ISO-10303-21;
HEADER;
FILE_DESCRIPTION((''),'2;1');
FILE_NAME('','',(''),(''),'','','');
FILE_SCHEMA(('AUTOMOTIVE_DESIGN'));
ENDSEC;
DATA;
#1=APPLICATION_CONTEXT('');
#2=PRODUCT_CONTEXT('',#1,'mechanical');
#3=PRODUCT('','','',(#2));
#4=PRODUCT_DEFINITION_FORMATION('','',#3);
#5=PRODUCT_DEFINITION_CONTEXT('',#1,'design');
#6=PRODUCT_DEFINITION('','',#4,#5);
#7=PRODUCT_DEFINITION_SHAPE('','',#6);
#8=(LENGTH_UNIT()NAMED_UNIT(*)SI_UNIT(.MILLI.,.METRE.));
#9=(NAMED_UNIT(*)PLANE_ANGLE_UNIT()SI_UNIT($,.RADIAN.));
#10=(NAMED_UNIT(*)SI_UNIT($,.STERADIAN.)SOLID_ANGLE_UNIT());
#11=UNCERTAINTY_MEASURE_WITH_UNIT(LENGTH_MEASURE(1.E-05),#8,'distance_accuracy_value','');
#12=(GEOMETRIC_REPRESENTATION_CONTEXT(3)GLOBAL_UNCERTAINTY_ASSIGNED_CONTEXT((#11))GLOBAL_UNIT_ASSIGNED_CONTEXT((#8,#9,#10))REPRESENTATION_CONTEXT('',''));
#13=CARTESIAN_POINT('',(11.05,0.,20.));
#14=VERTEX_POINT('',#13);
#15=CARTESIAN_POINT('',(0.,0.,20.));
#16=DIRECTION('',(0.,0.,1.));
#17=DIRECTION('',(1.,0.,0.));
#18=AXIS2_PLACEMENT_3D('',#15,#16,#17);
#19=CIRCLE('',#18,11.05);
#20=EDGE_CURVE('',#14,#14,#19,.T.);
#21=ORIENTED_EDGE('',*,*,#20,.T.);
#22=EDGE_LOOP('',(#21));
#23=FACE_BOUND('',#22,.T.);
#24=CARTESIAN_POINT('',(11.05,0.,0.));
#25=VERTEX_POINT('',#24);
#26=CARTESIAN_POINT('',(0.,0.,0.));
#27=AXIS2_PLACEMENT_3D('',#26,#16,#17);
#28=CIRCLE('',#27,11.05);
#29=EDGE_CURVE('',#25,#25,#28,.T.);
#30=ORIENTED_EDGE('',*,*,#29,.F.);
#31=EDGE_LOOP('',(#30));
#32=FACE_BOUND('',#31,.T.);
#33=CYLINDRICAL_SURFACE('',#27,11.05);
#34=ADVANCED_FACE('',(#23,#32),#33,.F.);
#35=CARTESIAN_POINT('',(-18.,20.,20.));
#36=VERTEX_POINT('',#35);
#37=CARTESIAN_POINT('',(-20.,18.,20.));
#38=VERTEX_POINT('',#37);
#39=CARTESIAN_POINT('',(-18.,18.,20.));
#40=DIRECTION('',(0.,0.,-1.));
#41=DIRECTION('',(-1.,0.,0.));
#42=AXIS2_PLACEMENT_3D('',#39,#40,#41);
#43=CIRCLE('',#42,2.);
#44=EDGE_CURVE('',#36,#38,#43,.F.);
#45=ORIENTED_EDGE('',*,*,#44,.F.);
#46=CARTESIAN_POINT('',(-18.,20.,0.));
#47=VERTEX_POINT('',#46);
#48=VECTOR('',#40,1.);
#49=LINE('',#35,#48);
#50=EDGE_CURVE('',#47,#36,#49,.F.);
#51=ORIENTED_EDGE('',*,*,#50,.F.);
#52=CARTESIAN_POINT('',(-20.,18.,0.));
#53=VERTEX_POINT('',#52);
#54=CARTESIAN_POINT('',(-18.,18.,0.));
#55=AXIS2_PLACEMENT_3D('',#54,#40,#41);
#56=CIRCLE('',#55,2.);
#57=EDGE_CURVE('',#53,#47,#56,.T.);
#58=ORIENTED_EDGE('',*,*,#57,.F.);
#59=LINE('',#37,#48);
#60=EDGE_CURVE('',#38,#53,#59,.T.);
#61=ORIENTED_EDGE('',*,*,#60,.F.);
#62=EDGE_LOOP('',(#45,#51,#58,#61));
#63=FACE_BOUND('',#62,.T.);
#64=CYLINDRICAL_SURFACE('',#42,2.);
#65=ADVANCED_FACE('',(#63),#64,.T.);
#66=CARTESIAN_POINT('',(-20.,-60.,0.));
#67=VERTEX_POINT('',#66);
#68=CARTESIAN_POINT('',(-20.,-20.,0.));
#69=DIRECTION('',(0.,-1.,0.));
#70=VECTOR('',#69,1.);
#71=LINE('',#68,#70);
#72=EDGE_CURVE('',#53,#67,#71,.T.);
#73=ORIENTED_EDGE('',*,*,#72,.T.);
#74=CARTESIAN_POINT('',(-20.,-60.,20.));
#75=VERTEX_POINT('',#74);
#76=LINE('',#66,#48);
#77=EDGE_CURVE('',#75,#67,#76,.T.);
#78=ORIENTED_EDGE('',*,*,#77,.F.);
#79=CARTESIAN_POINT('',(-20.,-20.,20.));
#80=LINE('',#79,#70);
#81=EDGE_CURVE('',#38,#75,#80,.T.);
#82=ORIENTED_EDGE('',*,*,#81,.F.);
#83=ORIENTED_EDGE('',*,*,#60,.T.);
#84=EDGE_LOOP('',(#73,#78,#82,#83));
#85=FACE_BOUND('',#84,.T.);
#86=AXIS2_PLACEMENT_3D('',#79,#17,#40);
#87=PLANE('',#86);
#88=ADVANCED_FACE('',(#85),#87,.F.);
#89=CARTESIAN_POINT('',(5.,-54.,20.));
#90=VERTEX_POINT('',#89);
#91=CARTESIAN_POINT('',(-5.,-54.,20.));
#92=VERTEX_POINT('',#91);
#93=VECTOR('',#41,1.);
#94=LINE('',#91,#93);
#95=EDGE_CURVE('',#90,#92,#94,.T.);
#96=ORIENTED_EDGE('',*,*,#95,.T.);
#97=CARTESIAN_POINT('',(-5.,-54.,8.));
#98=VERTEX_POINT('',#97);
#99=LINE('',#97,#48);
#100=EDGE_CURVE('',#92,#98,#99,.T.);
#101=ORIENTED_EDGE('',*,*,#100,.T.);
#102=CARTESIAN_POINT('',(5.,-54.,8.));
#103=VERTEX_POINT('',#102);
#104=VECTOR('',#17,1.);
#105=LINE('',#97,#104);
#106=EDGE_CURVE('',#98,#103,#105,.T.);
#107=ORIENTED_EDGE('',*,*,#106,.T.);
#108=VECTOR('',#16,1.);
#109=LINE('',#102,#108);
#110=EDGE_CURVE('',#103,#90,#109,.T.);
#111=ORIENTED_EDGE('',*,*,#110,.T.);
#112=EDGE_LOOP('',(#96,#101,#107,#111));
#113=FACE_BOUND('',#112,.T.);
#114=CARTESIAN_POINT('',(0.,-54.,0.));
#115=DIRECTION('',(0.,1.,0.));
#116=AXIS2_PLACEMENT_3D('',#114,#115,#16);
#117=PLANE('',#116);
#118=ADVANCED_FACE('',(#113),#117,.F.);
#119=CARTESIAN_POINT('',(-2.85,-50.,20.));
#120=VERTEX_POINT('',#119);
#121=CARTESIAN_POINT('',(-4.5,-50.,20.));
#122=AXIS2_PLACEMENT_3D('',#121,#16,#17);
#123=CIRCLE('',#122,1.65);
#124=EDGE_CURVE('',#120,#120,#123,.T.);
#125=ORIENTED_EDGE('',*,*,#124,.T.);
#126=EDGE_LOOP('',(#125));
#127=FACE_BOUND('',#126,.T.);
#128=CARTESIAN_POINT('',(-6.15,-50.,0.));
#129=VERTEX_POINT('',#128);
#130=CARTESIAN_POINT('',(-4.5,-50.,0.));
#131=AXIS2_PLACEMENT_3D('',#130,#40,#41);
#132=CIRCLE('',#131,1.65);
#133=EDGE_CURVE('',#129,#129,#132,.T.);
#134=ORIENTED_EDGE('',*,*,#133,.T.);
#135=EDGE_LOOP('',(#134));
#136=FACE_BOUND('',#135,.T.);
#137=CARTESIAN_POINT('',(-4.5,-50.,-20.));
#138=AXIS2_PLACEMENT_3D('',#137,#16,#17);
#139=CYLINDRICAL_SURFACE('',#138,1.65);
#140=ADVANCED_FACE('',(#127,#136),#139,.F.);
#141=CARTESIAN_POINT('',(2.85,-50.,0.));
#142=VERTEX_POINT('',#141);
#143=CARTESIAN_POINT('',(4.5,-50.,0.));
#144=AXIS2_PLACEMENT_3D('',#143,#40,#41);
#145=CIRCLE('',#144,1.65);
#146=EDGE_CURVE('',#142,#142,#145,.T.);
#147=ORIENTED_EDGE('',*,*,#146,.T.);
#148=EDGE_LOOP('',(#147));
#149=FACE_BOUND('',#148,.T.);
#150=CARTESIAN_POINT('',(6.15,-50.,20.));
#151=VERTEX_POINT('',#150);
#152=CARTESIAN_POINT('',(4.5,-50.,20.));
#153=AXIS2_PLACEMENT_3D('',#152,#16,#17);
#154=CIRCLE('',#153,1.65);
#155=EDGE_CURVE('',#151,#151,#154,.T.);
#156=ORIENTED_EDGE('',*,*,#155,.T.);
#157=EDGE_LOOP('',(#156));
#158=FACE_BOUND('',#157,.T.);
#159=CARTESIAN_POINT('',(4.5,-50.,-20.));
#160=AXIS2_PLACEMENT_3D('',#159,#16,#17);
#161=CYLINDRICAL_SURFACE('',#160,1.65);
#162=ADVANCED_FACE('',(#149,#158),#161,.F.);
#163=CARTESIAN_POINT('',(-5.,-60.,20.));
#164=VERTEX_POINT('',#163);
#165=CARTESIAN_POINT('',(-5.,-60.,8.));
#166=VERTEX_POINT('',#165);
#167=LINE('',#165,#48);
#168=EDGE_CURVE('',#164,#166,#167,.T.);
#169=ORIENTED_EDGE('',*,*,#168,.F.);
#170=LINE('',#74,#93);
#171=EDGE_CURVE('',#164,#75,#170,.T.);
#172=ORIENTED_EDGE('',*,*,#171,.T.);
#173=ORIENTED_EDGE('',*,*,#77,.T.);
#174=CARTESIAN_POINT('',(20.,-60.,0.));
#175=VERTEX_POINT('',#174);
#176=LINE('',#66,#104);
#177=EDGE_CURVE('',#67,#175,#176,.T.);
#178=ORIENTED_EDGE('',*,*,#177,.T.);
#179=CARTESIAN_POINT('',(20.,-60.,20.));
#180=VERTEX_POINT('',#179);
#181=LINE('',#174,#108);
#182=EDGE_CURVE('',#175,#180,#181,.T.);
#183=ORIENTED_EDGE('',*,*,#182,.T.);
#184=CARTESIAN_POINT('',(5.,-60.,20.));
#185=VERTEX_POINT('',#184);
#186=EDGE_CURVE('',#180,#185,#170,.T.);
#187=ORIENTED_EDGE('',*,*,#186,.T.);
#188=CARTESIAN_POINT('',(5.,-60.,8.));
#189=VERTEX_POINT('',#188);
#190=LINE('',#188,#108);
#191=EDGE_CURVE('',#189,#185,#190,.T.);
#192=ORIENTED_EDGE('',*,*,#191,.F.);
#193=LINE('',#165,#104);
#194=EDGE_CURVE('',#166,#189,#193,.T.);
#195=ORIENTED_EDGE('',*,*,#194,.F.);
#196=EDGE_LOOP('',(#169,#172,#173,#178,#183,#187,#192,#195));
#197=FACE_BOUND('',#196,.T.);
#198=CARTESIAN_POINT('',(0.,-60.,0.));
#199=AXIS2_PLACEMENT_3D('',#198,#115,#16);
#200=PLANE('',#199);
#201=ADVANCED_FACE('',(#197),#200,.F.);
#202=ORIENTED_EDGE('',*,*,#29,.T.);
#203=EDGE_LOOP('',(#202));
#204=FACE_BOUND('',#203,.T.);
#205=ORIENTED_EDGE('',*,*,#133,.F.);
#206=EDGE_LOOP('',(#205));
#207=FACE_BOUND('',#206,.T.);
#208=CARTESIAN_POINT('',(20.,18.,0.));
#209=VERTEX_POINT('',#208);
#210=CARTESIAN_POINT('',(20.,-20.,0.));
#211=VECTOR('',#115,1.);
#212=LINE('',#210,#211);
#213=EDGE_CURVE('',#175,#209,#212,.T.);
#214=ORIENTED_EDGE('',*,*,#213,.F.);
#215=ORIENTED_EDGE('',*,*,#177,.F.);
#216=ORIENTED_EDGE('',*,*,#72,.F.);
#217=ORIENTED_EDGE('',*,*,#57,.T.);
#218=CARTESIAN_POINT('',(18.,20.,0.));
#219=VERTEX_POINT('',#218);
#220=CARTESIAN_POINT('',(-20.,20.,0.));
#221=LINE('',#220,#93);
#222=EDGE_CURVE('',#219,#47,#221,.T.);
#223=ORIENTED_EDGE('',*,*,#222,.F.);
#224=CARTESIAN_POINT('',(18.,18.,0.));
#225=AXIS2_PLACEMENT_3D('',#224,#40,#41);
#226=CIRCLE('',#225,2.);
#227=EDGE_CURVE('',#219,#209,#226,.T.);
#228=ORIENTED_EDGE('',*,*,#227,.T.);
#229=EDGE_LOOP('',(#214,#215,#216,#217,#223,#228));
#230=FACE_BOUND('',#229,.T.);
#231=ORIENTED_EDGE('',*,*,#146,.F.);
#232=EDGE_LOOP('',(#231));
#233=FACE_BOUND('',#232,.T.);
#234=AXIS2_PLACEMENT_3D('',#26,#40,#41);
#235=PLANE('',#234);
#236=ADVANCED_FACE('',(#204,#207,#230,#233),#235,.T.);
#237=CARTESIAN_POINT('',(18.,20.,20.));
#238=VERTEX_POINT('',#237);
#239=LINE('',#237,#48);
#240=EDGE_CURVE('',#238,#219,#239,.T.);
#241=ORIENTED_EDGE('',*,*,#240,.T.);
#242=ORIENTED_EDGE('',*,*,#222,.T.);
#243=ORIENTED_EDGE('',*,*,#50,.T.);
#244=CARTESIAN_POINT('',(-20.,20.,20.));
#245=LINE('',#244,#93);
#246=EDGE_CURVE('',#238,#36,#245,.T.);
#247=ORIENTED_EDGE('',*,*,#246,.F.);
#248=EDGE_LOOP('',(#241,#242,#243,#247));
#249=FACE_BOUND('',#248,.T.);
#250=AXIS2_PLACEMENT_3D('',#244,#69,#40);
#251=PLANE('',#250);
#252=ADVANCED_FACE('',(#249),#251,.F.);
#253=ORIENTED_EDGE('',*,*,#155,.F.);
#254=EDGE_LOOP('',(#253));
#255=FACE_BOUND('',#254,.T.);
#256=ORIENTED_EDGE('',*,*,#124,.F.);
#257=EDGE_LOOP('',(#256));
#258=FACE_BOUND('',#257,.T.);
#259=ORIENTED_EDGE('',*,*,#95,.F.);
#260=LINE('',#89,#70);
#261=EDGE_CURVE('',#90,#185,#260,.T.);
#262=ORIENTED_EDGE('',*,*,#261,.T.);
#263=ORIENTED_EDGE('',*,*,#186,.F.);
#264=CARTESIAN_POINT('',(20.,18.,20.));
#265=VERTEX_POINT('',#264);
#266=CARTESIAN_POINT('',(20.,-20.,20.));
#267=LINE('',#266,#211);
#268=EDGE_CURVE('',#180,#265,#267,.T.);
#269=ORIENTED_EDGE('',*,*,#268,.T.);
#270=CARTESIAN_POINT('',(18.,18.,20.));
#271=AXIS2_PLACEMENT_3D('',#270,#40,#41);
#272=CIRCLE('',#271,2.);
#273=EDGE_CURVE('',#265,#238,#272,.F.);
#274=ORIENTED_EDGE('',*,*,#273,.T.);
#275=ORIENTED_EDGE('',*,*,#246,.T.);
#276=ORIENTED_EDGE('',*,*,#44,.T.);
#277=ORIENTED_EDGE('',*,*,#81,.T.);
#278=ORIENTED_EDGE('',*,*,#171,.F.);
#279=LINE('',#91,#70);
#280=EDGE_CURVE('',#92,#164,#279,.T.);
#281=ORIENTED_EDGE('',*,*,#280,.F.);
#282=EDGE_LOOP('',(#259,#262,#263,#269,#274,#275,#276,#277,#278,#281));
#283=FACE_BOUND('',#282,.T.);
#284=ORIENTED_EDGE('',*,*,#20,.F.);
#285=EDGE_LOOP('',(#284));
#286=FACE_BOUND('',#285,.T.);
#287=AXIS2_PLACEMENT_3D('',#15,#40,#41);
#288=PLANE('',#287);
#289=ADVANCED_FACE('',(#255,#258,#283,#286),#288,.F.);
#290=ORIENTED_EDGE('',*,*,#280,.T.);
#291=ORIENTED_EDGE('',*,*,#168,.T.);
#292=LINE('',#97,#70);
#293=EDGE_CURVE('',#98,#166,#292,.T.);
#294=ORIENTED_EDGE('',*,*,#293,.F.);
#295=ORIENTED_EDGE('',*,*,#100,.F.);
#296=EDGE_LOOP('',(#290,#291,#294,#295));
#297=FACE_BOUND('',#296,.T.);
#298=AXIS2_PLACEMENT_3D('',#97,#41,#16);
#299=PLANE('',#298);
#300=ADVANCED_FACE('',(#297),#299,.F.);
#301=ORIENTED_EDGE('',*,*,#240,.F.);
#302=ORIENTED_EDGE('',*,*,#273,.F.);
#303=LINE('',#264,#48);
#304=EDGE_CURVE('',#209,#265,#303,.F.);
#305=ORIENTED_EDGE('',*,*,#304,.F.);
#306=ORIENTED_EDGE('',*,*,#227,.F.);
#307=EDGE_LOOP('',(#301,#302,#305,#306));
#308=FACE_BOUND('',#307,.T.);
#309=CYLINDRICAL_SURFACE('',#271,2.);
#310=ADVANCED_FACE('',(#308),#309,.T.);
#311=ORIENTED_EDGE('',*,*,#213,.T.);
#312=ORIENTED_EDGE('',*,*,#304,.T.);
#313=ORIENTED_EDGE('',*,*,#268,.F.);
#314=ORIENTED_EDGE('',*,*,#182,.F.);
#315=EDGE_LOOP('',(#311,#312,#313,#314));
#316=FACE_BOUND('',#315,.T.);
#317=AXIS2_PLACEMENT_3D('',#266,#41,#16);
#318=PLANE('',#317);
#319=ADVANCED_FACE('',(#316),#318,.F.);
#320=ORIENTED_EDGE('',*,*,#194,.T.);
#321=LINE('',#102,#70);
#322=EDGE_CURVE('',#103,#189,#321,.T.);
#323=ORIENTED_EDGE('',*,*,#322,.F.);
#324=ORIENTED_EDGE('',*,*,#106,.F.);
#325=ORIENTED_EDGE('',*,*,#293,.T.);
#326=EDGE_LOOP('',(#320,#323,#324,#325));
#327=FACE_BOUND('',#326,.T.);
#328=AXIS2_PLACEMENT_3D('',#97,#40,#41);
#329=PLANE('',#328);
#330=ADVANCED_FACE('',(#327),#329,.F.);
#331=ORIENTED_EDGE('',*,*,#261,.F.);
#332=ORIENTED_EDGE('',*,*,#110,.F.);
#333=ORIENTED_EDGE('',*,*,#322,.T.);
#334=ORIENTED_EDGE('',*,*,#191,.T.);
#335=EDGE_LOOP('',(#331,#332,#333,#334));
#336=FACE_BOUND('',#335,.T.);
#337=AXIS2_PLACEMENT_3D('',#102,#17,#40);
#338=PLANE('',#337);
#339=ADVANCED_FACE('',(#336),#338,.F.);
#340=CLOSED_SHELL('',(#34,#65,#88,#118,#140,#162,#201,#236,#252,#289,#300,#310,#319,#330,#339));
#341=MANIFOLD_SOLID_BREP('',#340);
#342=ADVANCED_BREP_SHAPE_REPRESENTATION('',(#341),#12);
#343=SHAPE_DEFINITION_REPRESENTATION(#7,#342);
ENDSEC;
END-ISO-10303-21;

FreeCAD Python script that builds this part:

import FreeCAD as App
import Part
import Sketcher
Q = App.Units.Quantity


def edges_at(feature, points):
    """Names of the edges that pass closest to the given points."""
    edges = feature.Shape.Edges
    near = lambda p: min(range(len(edges)), key=lambda i: edges[i].distToShape(Part.Vertex(*p))[0])
    return sorted({f"Edge{near(p) + 1}" for p in points})


def add_polygon(sketch, points):
    """Adds a closed chain of lines whose ends are joined by coincident constraints."""
    first, n = sketch.GeometryCount, len(points)
    for a, b in zip(points, points[1:] + points[:1]):
        sketch.addGeometry(Part.LineSegment(App.Vector(*a, 0), App.Vector(*b, 0)), False)
    for i in range(n):
        sketch.addConstraint(Sketcher.Constraint("Coincident", first + i, 2, first + (i + 1) % n, 1))

doc = App.newDocument("Part")
body = doc.addObject("PartDesign::Body", "Body")

sketch1 = body.newObject("Sketcher::SketchObject", "Sketch")
sketch1.AttachmentSupport = (doc.getObject("XY_Plane"), [""])
sketch1.MapMode = "FlatFace"
add_polygon(sketch1, [(-20, 20), (-20, -20), (20, -20), (20, 20)])
sketch1.addConstraint([
    Sketcher.Constraint("Vertical", 0),
    Sketcher.Constraint("Horizontal", 1),
    Sketcher.Constraint("Vertical", 2),
    Sketcher.Constraint("Horizontal", 3),
    Sketcher.Constraint("Symmetric", 0, 2, 2, 2, -1, 1),
    Sketcher.Constraint("Equal", 3, 0),
    Sketcher.Constraint("DistanceX", 1, 1, 1, 2, Q("40 mm")),
])
pad1 = body.newObject("PartDesign::Pad", "Pad")
pad1.Profile = sketch1
pad1.Length = 20

sketch2 = body.newObject("Sketcher::SketchObject", "Sketch001")
sketch2.AttachmentSupport = (doc.getObject("XY_Plane"), [""])
sketch2.MapMode = "FlatFace"
sketch2.AttachmentOffset = App.Placement(App.Vector(0, 0, 20), App.Rotation())
sketch2.addGeometry(Part.Circle(App.Vector(0, 0, 0), App.Vector(0, 0, 1), 11.05), False)
sketch2.addConstraint([
    Sketcher.Constraint("Coincident", 0, 3, -1, 1),
    Sketcher.Constraint("Diameter", 0, Q("22.1 mm")),
])
pocket1 = body.newObject("PartDesign::Pocket", "Pocket")
pocket1.Profile = sketch2
pocket1.Length = 20

sketch3 = body.newObject("Sketcher::SketchObject", "Sketch002")
sketch3.AttachmentSupport = (doc.getObject("XZ_Plane"), [""])
sketch3.MapMode = "FlatFace"
sketch3.AttachmentOffset = App.Placement(App.Vector(0, 0, 20), App.Rotation())
add_polygon(sketch3, [(-20, 20), (-20, 0), (20, 0), (20, 20)])
sketch3.addConstraint([
    Sketcher.Constraint("Vertical", 0),
    Sketcher.Constraint("Horizontal", 1),
    Sketcher.Constraint("Vertical", 2),
    Sketcher.Constraint("Horizontal", 3),
    Sketcher.Constraint("Symmetric", 0, 2, 1, 2, -1, 1),
    Sketcher.Constraint("DistanceX", 1, 1, 1, 2, Q("40 mm")),
    Sketcher.Constraint("DistanceY", 0, 2, 0, 1, Q("20 mm")),
])
pad2 = body.newObject("PartDesign::Pad", "Pad001")
pad2.Profile = sketch3
pad2.Length = 40

sketch4 = body.newObject("Sketcher::SketchObject", "Sketch003")
sketch4.AttachmentSupport = (doc.getObject("XY_Plane"), [""])
sketch4.MapMode = "FlatFace"
sketch4.AttachmentOffset = App.Placement(App.Vector(0, 0, 20), App.Rotation())
sketch4.addGeometry([
    Part.Circle(App.Vector(4.5, -50, 0), App.Vector(0, 0, 1), 1.65),
    Part.Circle(App.Vector(-4.5, -50, 0), App.Vector(0, 0, 1), 1.65),
], False)
sketch4.addConstraint([
    Sketcher.Constraint("Equal", 0, 1),
    Sketcher.Constraint("Symmetric", 0, 3, 1, 3, -2),
    Sketcher.Constraint("Diameter", 0, Q("3.3 mm")),
    Sketcher.Constraint("DistanceY", 0, 3, -1, 1, Q("50 mm")),
    Sketcher.Constraint("DistanceX", 1, 3, 0, 3, Q("9 mm")),
])
pocket2 = body.newObject("PartDesign::Pocket", "Pocket001")
pocket2.Profile = sketch4
pocket2.Length = 40

sketch5 = body.newObject("Sketcher::SketchObject", "Sketch004")
sketch5.AttachmentSupport = (doc.getObject("XZ_Plane"), [""])
sketch5.MapMode = "FlatFace"
sketch5.AttachmentOffset = App.Placement(App.Vector(0, 0, 60), App.Rotation())
add_polygon(sketch5, [(-5, 20), (-5, 8), (5, 8), (5, 20)])
sketch5.addConstraint([
    Sketcher.Constraint("Vertical", 0),
    Sketcher.Constraint("Horizontal", 1),
    Sketcher.Constraint("Vertical", 2),
    Sketcher.Constraint("Horizontal", 3),
    Sketcher.Constraint("DistanceX", 1, 1, 1, 2, Q("10 mm")),
    Sketcher.Constraint("DistanceY", 0, 2, 0, 1, Q("12 mm")),
    Sketcher.Constraint("DistanceX", 0, 2, -1, 1, Q("5 mm")),
    Sketcher.Constraint("DistanceY", -1, 1, 0, 2, Q("8 mm")),
])
pocket3 = body.newObject("PartDesign::Pocket", "Pocket002")
pocket3.Profile = sketch5
pocket3.Length = 6
doc.recompute()

fillet = body.newObject("PartDesign::Fillet", "Fillet")
fillet.Base = (pocket3, edges_at(pocket3, [(-20, 20, 10), (20, 20, 10)]))
fillet.Radius = 2

doc.recompute()
